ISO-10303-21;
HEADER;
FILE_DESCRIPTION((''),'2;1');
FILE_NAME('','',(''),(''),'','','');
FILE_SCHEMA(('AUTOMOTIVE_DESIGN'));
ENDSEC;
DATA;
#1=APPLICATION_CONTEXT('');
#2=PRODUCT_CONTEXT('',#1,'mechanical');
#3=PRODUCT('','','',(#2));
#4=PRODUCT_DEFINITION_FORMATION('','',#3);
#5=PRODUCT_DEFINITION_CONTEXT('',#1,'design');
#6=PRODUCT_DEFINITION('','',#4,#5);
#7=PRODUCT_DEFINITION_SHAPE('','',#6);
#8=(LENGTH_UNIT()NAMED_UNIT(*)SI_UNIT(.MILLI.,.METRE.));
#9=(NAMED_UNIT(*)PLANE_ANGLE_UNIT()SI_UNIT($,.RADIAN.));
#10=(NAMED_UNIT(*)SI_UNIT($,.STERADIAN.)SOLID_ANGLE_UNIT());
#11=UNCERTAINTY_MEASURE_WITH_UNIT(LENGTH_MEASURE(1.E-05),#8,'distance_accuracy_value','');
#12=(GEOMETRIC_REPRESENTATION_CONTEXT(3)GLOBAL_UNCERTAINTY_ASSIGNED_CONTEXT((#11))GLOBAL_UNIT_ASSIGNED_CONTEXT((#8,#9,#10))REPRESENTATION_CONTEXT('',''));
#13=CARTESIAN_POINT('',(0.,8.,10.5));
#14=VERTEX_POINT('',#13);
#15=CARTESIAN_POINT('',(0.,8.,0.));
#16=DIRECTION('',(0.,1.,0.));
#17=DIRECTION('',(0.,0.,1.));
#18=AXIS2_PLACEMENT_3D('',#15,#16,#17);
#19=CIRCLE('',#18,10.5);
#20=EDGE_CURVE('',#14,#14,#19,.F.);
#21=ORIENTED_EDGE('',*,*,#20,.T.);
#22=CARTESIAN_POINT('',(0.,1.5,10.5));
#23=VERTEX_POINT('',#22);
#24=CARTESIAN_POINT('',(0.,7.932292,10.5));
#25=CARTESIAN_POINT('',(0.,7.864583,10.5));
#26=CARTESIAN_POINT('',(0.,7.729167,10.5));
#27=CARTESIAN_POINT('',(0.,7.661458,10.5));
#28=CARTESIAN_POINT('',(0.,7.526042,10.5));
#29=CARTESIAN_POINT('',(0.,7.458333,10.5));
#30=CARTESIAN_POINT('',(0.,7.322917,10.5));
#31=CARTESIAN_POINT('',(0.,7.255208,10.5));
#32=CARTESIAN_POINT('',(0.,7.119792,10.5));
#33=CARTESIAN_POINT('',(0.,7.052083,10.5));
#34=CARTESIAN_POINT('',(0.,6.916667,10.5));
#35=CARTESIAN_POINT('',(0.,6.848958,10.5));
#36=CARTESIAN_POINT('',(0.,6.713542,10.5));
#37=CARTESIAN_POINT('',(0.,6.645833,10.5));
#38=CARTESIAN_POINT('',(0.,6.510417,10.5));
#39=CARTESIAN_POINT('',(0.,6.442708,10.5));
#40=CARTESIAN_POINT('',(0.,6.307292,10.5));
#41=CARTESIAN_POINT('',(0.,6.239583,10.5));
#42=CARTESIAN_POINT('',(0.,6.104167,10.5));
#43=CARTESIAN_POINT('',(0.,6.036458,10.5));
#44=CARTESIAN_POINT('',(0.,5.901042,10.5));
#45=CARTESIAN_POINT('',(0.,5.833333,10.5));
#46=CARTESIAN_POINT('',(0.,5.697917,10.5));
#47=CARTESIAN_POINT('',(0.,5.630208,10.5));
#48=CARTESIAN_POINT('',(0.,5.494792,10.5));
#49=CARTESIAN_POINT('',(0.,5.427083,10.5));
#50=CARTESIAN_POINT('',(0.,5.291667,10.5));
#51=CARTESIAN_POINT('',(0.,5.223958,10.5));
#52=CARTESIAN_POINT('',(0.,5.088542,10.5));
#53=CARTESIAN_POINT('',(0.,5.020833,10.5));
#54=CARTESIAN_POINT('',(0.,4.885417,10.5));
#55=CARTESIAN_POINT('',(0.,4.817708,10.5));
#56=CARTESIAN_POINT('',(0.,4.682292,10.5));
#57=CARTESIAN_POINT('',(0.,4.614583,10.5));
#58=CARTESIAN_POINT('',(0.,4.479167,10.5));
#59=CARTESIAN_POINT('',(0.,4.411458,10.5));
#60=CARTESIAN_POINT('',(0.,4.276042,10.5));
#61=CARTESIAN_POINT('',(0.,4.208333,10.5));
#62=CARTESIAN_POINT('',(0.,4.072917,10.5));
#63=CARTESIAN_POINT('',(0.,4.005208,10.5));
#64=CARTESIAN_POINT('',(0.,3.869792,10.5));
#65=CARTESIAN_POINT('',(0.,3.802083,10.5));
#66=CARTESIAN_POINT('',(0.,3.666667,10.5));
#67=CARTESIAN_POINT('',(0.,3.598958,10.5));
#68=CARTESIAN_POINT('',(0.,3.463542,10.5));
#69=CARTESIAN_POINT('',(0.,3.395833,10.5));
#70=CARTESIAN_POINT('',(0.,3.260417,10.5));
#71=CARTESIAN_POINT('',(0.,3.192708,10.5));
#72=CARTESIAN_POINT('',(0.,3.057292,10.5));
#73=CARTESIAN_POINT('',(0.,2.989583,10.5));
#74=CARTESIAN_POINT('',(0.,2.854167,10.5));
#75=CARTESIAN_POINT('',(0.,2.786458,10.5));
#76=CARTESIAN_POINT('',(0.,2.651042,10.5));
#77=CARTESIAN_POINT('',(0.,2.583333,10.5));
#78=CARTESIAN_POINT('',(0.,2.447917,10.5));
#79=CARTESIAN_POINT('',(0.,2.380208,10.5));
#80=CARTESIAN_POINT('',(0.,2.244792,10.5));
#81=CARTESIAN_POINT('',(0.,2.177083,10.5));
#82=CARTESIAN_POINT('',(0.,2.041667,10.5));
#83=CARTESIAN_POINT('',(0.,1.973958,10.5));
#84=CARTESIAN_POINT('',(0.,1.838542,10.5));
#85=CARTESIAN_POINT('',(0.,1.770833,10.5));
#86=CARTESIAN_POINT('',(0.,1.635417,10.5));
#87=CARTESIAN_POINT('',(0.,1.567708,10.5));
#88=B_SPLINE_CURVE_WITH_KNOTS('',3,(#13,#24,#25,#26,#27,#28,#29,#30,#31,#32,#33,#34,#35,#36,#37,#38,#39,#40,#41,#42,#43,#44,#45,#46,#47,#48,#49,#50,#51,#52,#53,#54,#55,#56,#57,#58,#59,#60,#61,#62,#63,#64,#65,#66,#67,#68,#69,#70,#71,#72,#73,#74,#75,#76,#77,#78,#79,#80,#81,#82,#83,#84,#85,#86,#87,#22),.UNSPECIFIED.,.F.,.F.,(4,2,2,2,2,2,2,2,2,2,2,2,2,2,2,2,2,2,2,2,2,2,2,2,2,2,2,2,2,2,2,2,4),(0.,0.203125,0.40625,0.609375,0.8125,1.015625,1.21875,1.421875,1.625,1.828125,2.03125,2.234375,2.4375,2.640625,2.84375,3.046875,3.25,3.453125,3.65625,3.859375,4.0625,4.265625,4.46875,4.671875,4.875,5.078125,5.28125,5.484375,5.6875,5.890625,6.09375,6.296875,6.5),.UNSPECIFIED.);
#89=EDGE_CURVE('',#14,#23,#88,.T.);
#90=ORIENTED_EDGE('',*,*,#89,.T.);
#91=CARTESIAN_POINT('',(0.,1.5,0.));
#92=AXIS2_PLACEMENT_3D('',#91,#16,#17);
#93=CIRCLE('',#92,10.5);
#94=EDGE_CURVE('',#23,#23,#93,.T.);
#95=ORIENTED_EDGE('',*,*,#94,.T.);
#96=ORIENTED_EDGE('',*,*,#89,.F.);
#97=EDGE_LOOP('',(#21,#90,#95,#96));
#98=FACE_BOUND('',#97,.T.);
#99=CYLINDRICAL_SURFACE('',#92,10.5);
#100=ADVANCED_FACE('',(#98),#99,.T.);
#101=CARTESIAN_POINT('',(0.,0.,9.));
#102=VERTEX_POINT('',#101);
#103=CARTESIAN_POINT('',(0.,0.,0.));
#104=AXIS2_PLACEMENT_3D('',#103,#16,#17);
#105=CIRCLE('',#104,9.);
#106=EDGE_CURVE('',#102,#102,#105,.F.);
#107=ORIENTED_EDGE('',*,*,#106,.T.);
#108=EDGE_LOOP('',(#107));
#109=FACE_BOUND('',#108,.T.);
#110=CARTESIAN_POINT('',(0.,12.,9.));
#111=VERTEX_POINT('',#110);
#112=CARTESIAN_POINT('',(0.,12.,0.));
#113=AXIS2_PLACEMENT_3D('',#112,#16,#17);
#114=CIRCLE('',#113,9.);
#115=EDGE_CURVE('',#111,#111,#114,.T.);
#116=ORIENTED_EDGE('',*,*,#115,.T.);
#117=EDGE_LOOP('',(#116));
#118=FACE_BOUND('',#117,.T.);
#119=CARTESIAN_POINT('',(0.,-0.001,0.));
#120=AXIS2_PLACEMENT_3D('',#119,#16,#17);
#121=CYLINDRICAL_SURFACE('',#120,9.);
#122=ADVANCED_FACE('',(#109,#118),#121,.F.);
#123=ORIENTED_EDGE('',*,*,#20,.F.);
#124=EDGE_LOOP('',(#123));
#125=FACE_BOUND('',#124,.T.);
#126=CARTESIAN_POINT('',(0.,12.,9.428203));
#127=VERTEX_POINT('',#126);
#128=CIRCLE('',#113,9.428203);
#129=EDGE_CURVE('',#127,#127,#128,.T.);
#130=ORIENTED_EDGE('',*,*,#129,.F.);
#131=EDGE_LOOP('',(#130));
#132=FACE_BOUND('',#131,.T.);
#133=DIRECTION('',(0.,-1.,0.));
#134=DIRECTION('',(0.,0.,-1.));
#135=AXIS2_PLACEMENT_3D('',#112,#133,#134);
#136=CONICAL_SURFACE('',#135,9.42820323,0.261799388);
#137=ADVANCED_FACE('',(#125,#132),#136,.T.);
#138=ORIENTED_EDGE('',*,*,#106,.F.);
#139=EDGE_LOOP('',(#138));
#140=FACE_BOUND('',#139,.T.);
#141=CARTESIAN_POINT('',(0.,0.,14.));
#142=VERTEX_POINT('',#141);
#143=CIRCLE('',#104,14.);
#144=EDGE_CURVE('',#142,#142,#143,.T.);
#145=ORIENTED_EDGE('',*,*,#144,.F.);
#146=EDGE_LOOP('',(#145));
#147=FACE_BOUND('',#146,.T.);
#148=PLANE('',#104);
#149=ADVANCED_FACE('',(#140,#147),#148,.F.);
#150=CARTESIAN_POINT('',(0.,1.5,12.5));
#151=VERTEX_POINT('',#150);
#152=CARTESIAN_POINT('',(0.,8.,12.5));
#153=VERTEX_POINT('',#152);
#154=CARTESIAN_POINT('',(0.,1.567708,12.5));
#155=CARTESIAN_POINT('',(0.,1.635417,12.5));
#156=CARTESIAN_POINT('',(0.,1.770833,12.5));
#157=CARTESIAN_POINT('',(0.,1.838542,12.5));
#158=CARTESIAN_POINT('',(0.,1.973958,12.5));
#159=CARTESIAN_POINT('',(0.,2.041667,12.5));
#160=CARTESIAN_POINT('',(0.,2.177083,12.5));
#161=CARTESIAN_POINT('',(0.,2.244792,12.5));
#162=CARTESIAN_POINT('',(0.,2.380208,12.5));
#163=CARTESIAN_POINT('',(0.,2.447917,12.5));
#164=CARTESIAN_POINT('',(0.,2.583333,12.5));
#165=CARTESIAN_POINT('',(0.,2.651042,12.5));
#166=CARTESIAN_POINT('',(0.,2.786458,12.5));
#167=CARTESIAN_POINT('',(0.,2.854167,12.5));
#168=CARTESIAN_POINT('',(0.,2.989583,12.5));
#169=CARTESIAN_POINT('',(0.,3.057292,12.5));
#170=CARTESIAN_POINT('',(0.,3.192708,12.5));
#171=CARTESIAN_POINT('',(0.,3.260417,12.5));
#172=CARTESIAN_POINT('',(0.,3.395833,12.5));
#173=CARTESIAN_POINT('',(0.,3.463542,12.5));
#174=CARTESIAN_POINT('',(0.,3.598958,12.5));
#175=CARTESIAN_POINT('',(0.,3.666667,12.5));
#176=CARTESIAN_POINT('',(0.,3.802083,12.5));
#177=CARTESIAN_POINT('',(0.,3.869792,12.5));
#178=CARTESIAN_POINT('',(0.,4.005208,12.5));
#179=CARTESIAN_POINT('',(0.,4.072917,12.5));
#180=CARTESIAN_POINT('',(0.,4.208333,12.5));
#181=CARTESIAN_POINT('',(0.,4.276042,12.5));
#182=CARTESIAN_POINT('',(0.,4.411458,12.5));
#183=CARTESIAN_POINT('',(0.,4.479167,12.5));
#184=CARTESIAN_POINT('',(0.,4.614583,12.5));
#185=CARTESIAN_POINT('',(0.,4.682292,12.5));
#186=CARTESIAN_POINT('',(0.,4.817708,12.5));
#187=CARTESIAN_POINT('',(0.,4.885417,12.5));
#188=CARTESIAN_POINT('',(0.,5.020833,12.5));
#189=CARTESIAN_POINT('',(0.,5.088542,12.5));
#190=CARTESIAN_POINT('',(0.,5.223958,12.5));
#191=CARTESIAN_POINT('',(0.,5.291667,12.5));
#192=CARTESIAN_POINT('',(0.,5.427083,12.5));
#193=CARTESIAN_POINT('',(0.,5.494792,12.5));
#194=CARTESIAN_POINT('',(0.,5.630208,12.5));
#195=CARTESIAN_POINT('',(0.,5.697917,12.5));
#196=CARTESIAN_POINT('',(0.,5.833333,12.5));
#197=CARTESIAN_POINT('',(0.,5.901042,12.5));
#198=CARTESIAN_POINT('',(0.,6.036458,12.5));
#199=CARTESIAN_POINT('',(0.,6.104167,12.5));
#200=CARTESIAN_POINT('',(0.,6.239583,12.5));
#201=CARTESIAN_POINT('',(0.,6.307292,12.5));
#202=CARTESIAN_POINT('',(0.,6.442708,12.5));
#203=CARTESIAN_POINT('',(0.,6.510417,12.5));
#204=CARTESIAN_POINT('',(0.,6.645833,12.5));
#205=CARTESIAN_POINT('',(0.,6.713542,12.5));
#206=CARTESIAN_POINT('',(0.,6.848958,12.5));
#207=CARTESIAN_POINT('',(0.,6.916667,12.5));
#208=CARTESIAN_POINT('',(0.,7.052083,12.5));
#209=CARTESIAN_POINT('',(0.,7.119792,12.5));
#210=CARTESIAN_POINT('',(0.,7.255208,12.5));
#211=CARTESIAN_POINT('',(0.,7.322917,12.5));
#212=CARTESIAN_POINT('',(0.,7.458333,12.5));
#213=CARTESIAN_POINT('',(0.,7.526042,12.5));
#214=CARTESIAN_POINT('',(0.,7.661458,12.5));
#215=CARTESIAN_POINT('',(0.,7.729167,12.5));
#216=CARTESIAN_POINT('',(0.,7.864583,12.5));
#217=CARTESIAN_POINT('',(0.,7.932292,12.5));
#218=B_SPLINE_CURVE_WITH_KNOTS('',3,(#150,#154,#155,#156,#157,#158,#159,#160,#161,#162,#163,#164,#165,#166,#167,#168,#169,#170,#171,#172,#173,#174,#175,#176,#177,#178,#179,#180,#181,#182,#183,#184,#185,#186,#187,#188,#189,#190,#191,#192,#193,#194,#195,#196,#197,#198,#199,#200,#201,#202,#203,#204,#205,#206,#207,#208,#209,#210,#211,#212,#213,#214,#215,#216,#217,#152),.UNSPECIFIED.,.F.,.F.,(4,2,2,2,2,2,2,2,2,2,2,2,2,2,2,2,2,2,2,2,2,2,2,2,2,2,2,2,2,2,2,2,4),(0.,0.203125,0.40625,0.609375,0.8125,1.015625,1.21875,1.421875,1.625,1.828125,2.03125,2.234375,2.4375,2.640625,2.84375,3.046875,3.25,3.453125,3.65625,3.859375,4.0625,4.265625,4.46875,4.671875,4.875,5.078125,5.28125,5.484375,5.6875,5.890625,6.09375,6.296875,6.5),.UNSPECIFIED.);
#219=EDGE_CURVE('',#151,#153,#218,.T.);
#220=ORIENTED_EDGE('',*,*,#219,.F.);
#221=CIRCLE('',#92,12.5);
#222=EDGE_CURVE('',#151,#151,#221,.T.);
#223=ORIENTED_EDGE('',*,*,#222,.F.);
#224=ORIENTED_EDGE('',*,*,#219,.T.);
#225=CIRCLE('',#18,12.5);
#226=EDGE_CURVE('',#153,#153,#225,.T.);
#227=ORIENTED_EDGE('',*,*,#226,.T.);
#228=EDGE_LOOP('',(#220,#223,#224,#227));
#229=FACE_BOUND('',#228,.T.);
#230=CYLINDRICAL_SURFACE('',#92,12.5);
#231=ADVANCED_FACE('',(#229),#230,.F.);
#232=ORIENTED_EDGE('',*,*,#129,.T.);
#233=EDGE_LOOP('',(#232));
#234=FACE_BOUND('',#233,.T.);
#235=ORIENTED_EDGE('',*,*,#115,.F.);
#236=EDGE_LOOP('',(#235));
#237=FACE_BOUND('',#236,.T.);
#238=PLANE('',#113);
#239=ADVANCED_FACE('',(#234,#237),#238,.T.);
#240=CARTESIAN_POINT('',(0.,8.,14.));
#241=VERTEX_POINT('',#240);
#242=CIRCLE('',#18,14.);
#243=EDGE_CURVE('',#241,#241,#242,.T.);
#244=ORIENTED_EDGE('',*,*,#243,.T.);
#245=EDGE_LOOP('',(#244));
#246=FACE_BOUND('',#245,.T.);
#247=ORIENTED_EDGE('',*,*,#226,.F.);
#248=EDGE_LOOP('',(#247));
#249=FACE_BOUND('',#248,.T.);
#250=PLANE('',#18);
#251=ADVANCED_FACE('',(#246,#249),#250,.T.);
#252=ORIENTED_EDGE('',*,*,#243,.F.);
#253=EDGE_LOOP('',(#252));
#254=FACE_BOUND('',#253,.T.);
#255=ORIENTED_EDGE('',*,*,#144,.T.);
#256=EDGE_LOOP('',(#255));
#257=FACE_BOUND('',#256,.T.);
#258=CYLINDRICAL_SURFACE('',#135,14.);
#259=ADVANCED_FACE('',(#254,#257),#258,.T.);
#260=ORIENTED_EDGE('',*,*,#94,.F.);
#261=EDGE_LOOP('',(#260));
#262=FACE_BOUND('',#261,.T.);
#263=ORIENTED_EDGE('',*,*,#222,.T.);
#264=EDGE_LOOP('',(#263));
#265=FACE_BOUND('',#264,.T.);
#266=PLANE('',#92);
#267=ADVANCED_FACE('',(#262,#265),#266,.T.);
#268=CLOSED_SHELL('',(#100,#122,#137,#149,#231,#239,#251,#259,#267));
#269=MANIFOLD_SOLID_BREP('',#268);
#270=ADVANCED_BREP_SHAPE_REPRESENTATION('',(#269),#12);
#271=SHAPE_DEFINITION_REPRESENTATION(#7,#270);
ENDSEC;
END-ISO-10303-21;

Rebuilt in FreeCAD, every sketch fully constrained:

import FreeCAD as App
import Part
import Sketcher


def edges_at(feature, points):
    """Names of the edges that pass closest to the given points."""
    edges = feature.Shape.Edges
    near = lambda p: min(range(len(edges)), key=lambda i: edges[i].distToShape(Part.Vertex(*p))[0])
    return sorted({f"Edge{near(p) + 1}" for p in points})

doc = App.newDocument("Part")
params = doc.addObject("Spreadsheet::Sheet", "Params")
for row, (alias, value) in enumerate([
    ("sketch1_diameter", "28 mm"),
    ("pad1_length", "12 mm"),
    ("sketch2_diameter", "18 mm"),
    ("sketch3_diameter", "25 mm"),
    ("sketch3_diameter2", "21 mm"),
    ("pocket2_length", "10.5 mm"),
    ("sketch4_diameter", "28 mm"),
    ("sketch4_diameter2", "25 mm"),
    ("pocket3_length", "4 mm"),
    ("chamfer_size", "4 mm"),
    ("chamfer_size2", "1.071797 mm"),
], start=1):
    params.set(f"A{row}", alias)
    params.set(f"B{row}", "=" + value)
    params.setAlias(f"B{row}", alias)

body = doc.addObject("PartDesign::Body", "Body")

# Sketch on XZ plane
sketch1 = body.newObject("Sketcher::SketchObject", "Sketch")
sketch1.AttachmentSupport = (doc.getObject("XZ_Plane"), [""])
sketch1.MapMode = "FlatFace"
sketch1.addGeometry(Part.Circle(App.Vector(0, 0, 0), App.Vector(0, 0, 1), 14), False)
sketch1.addConstraint(Sketcher.Constraint("Coincident", 0, 3, -1, 1))
sketch1.addConstraint(Sketcher.Constraint("Diameter", 0, 28.0))
sketch1.setExpression("Constraints[1]", "Params.sketch1_diameter")
pad1 = body.newObject("PartDesign::Pad", "Pad")
pad1.Profile = sketch1
pad1.setExpression("Length", "Params.pad1_length")
pad1.Reversed = True

# Sketch on XZ plane
sketch2 = body.newObject("Sketcher::SketchObject", "Sketch001")
sketch2.AttachmentSupport = (doc.getObject("XZ_Plane"), [""])
sketch2.MapMode = "FlatFace"
sketch2.AttachmentOffset = App.Placement(App.Vector(0, 0, -12), App.Rotation())
sketch2.addGeometry(Part.Circle(App.Vector(0, 0, 0), App.Vector(0, 0, 1), 9), False)
sketch2.addConstraint(Sketcher.Constraint("Coincident", 0, 3, -1, 1))
sketch2.addConstraint(Sketcher.Constraint("Diameter", 0, 18.0))
sketch2.setExpression("Constraints[1]", "Params.sketch2_diameter")
pocket1 = body.newObject("PartDesign::Pocket", "Pocket")
pocket1.Profile = sketch2
pocket1.Type = "UpToFirst"
pocket1.Reversed = True

# Sketch on XZ plane
sketch3 = body.newObject("Sketcher::SketchObject", "Sketch002")
sketch3.AttachmentSupport = (doc.getObject("XZ_Plane"), [""])
sketch3.MapMode = "FlatFace"
sketch3.AttachmentOffset = App.Placement(App.Vector(0, 0, -12), App.Rotation())
sketch3.addGeometry(Part.Circle(App.Vector(0, 0, 0), App.Vector(0, 0, 1), 12), False)
sketch3.addGeometry(Part.Circle(App.Vector(0, 0, 0), App.Vector(0, 0, 1), 10), False)
sketch3.addConstraint(Sketcher.Constraint("Coincident", 0, 3, -1, 1))
sketch3.addConstraint(Sketcher.Constraint("Coincident", 1, 3, -1, 1))
sketch3.addConstraint(Sketcher.Constraint("Diameter", 0, 25.0))
sketch3.addConstraint(Sketcher.Constraint("Diameter", 1, 21.0))
sketch3.setExpression("Constraints[2]", "Params.sketch3_diameter")
sketch3.setExpression("Constraints[3]", "Params.sketch3_diameter2")
pocket2 = body.newObject("PartDesign::Pocket", "Pocket001")
pocket2.Profile = sketch3
pocket2.setExpression("Length", "Params.pocket2_length")
pocket2.Reversed = True

# Sketch on XZ plane
sketch4 = body.newObject("Sketcher::SketchObject", "Sketch003")
sketch4.AttachmentSupport = (doc.getObject("XZ_Plane"), [""])
sketch4.MapMode = "FlatFace"
sketch4.AttachmentOffset = App.Placement(App.Vector(0, 0, -12), App.Rotation())
sketch4.addGeometry(Part.Circle(App.Vector(0, 0, 0), App.Vector(0, 0, 1), 14), False)
sketch4.addGeometry(Part.Circle(App.Vector(0, 0, 0), App.Vector(0, 0, 1), 12), False)
sketch4.addConstraint(Sketcher.Constraint("Coincident", 0, 3, -1, 1))
sketch4.addConstraint(Sketcher.Constraint("Coincident", 1, 3, -1, 1))
sketch4.addConstraint(Sketcher.Constraint("Diameter", 0, 28.0))
sketch4.addConstraint(Sketcher.Constraint("Diameter", 1, 25.0))
sketch4.setExpression("Constraints[2]", "Params.sketch4_diameter")
sketch4.setExpression("Constraints[3]", "Params.sketch4_diameter2")
pocket3 = body.newObject("PartDesign::Pocket", "Pocket002")
pocket3.Profile = sketch4
pocket3.setExpression("Length", "Params.pocket3_length")
pocket3.Reversed = True
doc.recompute()

chamfer = body.newObject("PartDesign::Chamfer", "Chamfer")
chamfer.Base = (pocket3, edges_at(pocket3, [(0, 12, -10.5)]))
chamfer.ChamferType = "Two distances"
chamfer.setExpression("Size", "Params.chamfer_size")
chamfer.setExpression("Size2", "Params.chamfer_size2")
chamfer.FlipDirection = True

doc.recompute()
